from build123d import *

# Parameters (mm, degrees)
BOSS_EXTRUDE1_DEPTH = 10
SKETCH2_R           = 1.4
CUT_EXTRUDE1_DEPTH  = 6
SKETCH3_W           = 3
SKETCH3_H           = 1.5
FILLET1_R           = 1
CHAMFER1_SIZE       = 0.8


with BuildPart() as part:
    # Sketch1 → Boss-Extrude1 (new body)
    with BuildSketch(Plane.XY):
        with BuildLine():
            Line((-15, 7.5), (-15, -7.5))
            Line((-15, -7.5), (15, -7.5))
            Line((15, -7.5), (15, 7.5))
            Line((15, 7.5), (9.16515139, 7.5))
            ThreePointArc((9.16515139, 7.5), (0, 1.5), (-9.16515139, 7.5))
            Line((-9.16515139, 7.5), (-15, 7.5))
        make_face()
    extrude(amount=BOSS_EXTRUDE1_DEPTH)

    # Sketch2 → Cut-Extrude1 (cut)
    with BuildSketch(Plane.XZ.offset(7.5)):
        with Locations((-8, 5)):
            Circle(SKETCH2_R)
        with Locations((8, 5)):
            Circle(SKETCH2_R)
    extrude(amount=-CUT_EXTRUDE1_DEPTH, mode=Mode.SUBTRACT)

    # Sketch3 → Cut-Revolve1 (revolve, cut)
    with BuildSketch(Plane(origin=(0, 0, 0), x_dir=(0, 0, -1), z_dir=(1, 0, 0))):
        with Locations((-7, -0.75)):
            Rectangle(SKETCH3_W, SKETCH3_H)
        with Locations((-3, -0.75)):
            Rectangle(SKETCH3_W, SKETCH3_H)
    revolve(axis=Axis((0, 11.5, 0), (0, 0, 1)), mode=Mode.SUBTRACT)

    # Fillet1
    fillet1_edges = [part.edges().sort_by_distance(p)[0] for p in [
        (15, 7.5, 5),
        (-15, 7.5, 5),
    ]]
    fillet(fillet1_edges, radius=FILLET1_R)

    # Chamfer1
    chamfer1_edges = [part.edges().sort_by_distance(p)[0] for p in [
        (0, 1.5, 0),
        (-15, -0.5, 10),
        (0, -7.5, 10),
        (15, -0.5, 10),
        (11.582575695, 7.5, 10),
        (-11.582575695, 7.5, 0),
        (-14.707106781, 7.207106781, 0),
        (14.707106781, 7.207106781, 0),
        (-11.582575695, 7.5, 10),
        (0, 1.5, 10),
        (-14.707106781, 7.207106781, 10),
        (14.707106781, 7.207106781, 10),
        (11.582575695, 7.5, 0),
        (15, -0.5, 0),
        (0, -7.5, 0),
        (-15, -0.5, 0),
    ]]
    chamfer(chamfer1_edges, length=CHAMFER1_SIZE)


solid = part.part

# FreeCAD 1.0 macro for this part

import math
import FreeCAD as App
import Part
import Sketcher
from FreeCAD import Vector
Q = App.Units.Quantity


def edges_at(feature, points):
    """Names of the edges that pass closest to the given points."""
    edges = feature.Shape.Edges
    near = lambda p: min(range(len(edges)), key=lambda i: edges[i].distToShape(Part.Vertex(*p))[0])
    return sorted({f"Edge{near(p) + 1}" for p in points})

doc = App.newDocument("Part")
body = doc.addObject("PartDesign::Body", "Body")

# Sketch on XY plane
sketch1 = body.newObject("Sketcher::SketchObject", "Sketch")
sketch1.AttachmentSupport = (doc.getObject("XY_Plane"), [""])
sketch1.MapMode = "FlatFace"
sketch1.addGeometry([
    Part.LineSegment(Vector(-15, 8, 0), Vector(-15, -8, 0)),  # 0
    Part.LineSegment(Vector(-15, -8, 0), Vector(15, -8, 0)),  # 1
    Part.LineSegment(Vector(15, -8, 0), Vector(15, 8, 0)),  # 2
    Part.LineSegment(Vector(15, 8, 0), Vector(9, 8, 0)),  # 3
    Part.ArcOfCircle(Part.Circle(Vector(0, 12, 0), Vector(0, 0, 1), 10), math.radians(-156), math.radians(-24)),  # 4
    Part.LineSegment(Vector(-9, 8, 0), Vector(-15, 8, 0)),  # 5
], False)
sketch1.addConstraint([
    Sketcher.Constraint("Coincident", 0, 2, 1, 1),
    Sketcher.Constraint("Coincident", 1, 2, 2, 1),
    Sketcher.Constraint("Coincident", 2, 2, 3, 1),
    Sketcher.Constraint("Coincident", 3, 2, 4, 2),
    Sketcher.Constraint("Coincident", 4, 1, 5, 1),
    Sketcher.Constraint("Coincident", 5, 2, 0, 1),
    Sketcher.Constraint("Vertical", 0),
    Sketcher.Constraint("Horizontal", 1),
    Sketcher.Constraint("Vertical", 2),
    Sketcher.Constraint("Horizontal", 3),
    Sketcher.Constraint("Horizontal", 5),
    Sketcher.Constraint("Symmetric", 0, 2, 2, 2, -1, 1),
    Sketcher.Constraint("Symmetric", 3, 2, 4, 1, -2),
    Sketcher.Constraint("Radius", 4, Q("10 mm")),
    Sketcher.Constraint("DistanceX", 1, 1, 1, 2, Q("30 mm")),
    Sketcher.Constraint("DistanceY", 0, 2, 0, 1, Q("15 mm")),
    Sketcher.Constraint("DistanceY", 0, 2, 4, 3, Q("19 mm")),
])
pad1 = body.newObject("PartDesign::Pad", "Pad")
pad1.Profile = sketch1
pad1.Length = 10

# Sketch on XZ plane
sketch2 = body.newObject("Sketcher::SketchObject", "Sketch001")
sketch2.AttachmentSupport = (doc.getObject("XZ_Plane"), [""])
sketch2.MapMode = "FlatFace"
sketch2.AttachmentOffset = App.Placement(Vector(0, 0, 7.5), App.Rotation())
sketch2.addGeometry([
    Part.Circle(Vector(-8, 5, 0), Vector(0, 0, 1), 1.4),
    Part.Circle(Vector(8, 5, 0), Vector(0, 0, 1), 1.4),
], False)
sketch2.addConstraint([
    Sketcher.Constraint("Equal", 0, 1),
    Sketcher.Constraint("Symmetric", 0, 3, 1, 3, -2),
    Sketcher.Constraint("Diameter", 0, Q("2.8 mm")),
    Sketcher.Constraint("DistanceX", 0, 3, -1, 1, Q("8 mm")),
    Sketcher.Constraint("DistanceY", -1, 1, 0, 3, Q("5 mm")),
])
pocket1 = body.newObject("PartDesign::Pocket", "Pocket")
pocket1.Profile = sketch2
pocket1.Length = 6

# Sketch on YZ plane
sketch3 = body.newObject("Sketcher::SketchObject", "Sketch002")
sketch3.AttachmentSupport = (doc.getObject("YZ_Plane"), [""])
sketch3.MapMode = "FlatFace"
sketch3.addGeometry([
    Part.LineSegment(Vector(0, 8.5, 0), Vector(-1.5, 8.5, 0)),  # 0
    Part.LineSegment(Vector(-1.5, 8.5, 0), Vector(-1.5, 5.5, 0)),  # 1
    Part.LineSegment(Vector(-1.5, 5.5, 0), Vector(0, 5.5, 0)),  # 2
    Part.LineSegment(Vector(0, 5.5, 0), Vector(0, 8.5, 0)),  # 3
    Part.LineSegment(Vector(0, 4.5, 0), Vector(-1.5, 4.5, 0)),  # 4
    Part.LineSegment(Vector(-1.5, 4.5, 0), Vector(-1.5, 1.5, 0)),  # 5
    Part.LineSegment(Vector(-1.5, 1.5, 0), Vector(0, 1.5, 0)),  # 6
    Part.LineSegment(Vector(0, 1.5, 0), Vector(0, 4.5, 0)),  # 7
], False)
sketch3.addGeometry(Part.LineSegment(Vector(11.5, 1.5, 0), Vector(11.5, 8.5, 0)), True)  # axis
sketch3.addConstraint([
    Sketcher.Constraint("Coincident", 0, 2, 1, 1),
    Sketcher.Constraint("Coincident", 1, 2, 2, 1),
    Sketcher.Constraint("Coincident", 2, 2, 3, 1),
    Sketcher.Constraint("Coincident", 3, 2, 0, 1),
    Sketcher.Constraint("Coincident", 4, 2, 5, 1),
    Sketcher.Constraint("Coincident", 5, 2, 6, 1),
    Sketcher.Constraint("Coincident", 6, 2, 7, 1),
    Sketcher.Constraint("Coincident", 7, 2, 4, 1),
    Sketcher.Constraint("Horizontal", 0),
    Sketcher.Constraint("Vertical", 1),
    Sketcher.Constraint("Horizontal", 2),
    Sketcher.Constraint("Vertical", 3),
    Sketcher.Constraint("Horizontal", 4),
    Sketcher.Constraint("Vertical", 5),
    Sketcher.Constraint("Horizontal", 6),
    Sketcher.Constraint("Vertical", 7),
    Sketcher.Constraint("Vertical", 8),
    Sketcher.Constraint("PointOnObject", 2, 2, -2),
    Sketcher.Constraint("PointOnObject", 6, 2, -2),
    Sketcher.Constraint("Horizontal", 6, 2, 8, 1),
    Sketcher.Constraint("Horizontal", 3, 2, 8, 2),
    Sketcher.Constraint("Vertical", 1, 2, 4, 2),
    Sketcher.Constraint("Equal", 3, 5),
    Sketcher.Constraint("DistanceY", 1, 2, 1, 1, Q("3 mm")),
    Sketcher.Constraint("DistanceY", 8, 1, 8, 2, Q("7 mm")),
    Sketcher.Constraint("DistanceX", 0, 2, 0, 1, Q("1.5 mm")),
    Sketcher.Constraint("DistanceX", 5, 2, 8, 1, Q("13 mm")),
    Sketcher.Constraint("DistanceY", -1, 1, 0, 2, Q("8.5 mm")),
])
groove = body.newObject("PartDesign::Groove", "Groove")
groove.Profile = sketch3
groove.ReferenceAxis = (sketch3, ["Axis0"])
groove.Angle = 360
doc.recompute()

fillet = body.newObject("PartDesign::Fillet", "Fillet")
fillet.Base = (groove, edges_at(groove, [(15, 7.5, 5), (-15, 7.5, 5)]))
fillet.Radius = 1
doc.recompute()

chamfer = body.newObject("PartDesign::Chamfer", "Chamfer")
chamfer.Base = (fillet, edges_at(fillet, [
    (0, 1.5, 0),
    (-15, -0.5, 10),
    (0, -7.5, 10),
    (15, -0.5, 10),
    (11.583, 7.5, 10),
    (-11.583, 7.5, 0),
    (-14.707, 7.207, 0),
    (14.707, 7.207, 0),
    (-11.583, 7.5, 10),
    (0, 1.5, 10),
    (-14.707, 7.207, 10),
    (14.707, 7.207, 10),
    (11.583, 7.5, 0),
    (15, -0.5, 0),
    (0, -7.5, 0),
    (-15, -0.5, 0),
]))
chamfer.Size = 0.8

doc.recompute()
